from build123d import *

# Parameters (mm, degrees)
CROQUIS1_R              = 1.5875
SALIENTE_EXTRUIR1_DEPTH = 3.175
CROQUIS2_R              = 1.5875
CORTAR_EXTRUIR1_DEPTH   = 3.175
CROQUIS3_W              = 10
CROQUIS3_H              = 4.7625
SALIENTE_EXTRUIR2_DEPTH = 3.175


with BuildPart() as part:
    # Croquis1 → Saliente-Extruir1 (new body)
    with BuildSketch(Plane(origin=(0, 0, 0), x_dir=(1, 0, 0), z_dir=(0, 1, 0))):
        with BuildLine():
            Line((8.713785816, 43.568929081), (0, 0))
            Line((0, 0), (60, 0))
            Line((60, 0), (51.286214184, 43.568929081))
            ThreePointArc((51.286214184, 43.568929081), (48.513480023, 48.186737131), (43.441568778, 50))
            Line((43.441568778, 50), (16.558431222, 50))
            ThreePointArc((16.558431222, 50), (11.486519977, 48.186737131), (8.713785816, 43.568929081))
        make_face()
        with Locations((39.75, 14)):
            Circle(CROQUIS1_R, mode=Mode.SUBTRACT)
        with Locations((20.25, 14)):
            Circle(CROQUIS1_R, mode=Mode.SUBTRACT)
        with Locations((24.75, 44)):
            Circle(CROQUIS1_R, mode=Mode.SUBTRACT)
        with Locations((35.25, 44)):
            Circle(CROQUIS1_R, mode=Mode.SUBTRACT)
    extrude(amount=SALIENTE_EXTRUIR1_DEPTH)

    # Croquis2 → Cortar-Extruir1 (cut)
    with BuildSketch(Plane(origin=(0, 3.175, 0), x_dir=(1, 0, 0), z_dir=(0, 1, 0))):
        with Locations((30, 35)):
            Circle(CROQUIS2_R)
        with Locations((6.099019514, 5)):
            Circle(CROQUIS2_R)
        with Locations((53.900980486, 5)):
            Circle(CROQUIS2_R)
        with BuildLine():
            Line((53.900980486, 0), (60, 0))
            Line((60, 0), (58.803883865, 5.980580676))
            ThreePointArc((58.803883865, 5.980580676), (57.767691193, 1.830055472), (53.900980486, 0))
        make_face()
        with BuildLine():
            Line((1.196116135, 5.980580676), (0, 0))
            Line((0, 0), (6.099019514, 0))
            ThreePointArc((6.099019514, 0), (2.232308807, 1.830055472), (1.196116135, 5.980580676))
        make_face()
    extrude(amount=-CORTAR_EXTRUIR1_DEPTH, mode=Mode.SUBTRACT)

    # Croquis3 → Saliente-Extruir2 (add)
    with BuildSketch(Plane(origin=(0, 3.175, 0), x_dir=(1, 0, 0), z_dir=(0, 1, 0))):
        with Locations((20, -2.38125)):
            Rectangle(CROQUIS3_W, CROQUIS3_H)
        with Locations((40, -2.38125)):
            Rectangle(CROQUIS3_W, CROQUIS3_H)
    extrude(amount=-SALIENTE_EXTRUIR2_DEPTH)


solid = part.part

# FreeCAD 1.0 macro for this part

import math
import FreeCAD as App
import Part
import Sketcher
Q = App.Units.Quantity

doc = App.newDocument("Part")
params = doc.addObject("Spreadsheet::Sheet", "Params")
for row, (alias, value) in enumerate([
    ("sketch1_radius", "8 mm"),
    ("sketch1_width", "60 mm"),
    ("pad1_length", "3.175 mm"),
    ("sketch2_radius", "5 mm"),
    ("pocket1_length", "3.175 mm"),
    ("sketch3_width", "10 mm"),
    ("pad2_length", "3.175 mm"),
], start=1):
    params.set(f"A{row}", alias)
    params.set(f"B{row}", "=" + value)
    params.setAlias(f"B{row}", alias)

body = doc.addObject("PartDesign::Body", "Body")

# Sketch on XZ plane
sketch1 = body.newObject("Sketcher::SketchObject", "Sketch")
sketch1.AttachmentSupport = (doc.getObject("XZ_Plane"), [""])
sketch1.MapMode = "FlatFace"
sketch1.addGeometry([
    Part.LineSegment(App.Vector(8.7, -43.6, 0), App.Vector(0, 0, 0)),  # 0
    Part.LineSegment(App.Vector(0, 0, 0), App.Vector(60, 0, 0)),  # 1
    Part.LineSegment(App.Vector(60, 0, 0), App.Vector(51.3, -43.6, 0)),  # 2
    Part.ArcOfCircle(Part.Circle(App.Vector(43.4, -42, 0), App.Vector(0, 0, 1), 8), math.radians(-90), math.radians(-11)),  # 3
    Part.LineSegment(App.Vector(43.4, -50, 0), App.Vector(16.6, -50, 0)),  # 4
    Part.ArcOfCircle(Part.Circle(App.Vector(16.6, -42, 0), App.Vector(0, 0, 1), 8), math.radians(-169), math.radians(-90)),  # 5
    Part.Circle(App.Vector(20.2, -14, 0), App.Vector(0, 0, 1), 1.6),  # 6
    Part.Circle(App.Vector(39.8, -14, 0), App.Vector(0, 0, 1), 1.6),  # 7
    Part.Circle(App.Vector(24.8, -44, 0), App.Vector(0, 0, 1), 1.6),  # 8
    Part.Circle(App.Vector(35.2, -44, 0), App.Vector(0, 0, 1), 1.6),  # 9
], False)
sketch1.addConstraint([
    Sketcher.Constraint("Coincident", 0, 2, 1, 1),
    Sketcher.Constraint("Coincident", 1, 2, 2, 1),
    Sketcher.Constraint("Tangent", 2, 2, 3, 2),
    Sketcher.Constraint("Tangent", 3, 1, 4, 1),
    Sketcher.Constraint("Tangent", 4, 2, 5, 2),
    Sketcher.Constraint("Tangent", 5, 1, 0, 1),
    Sketcher.Constraint("Horizontal", 1),
    Sketcher.Constraint("Horizontal", 4),
    Sketcher.Constraint("Coincident", 0, 2, -1, 1),
    Sketcher.Constraint("Equal", 3, 5),
    Sketcher.Constraint("Equal", 6, 7),
    Sketcher.Constraint("Equal", 7, 8),
    Sketcher.Constraint("Equal", 8, 9),
    Sketcher.Constraint("Horizontal", 6, 3, 7, 3),
    Sketcher.Constraint("Horizontal", 8, 3, 9, 3),
    Sketcher.Constraint("Horizontal", 2, 2, 5, 1),
    Sketcher.Constraint("Radius", 3, Q("8 mm")),
    Sketcher.Constraint("DistanceX", 1, 1, 1, 2, Q("60 mm")),
    Sketcher.Constraint("Diameter", 6, Q("3.175 mm")),
    Sketcher.Constraint("DistanceY", 3, 3, -1, 1, Q("42 mm")),
    Sketcher.Constraint("DistanceY", 6, 3, -1, 1, Q("14 mm")),
    Sketcher.Constraint("DistanceY", 8, 3, -1, 1, Q("44 mm")),
    Sketcher.Constraint("DistanceX", 8, 3, 7, 3, Q("15 mm")),
    Sketcher.Constraint("DistanceX", 6, 3, 9, 3, Q("15 mm")),
    Sketcher.Constraint("DistanceX", 6, 3, 7, 3, Q("19.5 mm")),
    Sketcher.Constraint("DistanceX", -1, 1, 6, 3, Q("20.25 mm")),
    Sketcher.Constraint("DistanceX", 4, 2, 4, 1, Q("26.883138 mm")),
])
sketch1.setExpression("Constraints[16]", "Params.sketch1_radius")
sketch1.setExpression("Constraints[17]", "Params.sketch1_width")
pad1 = body.newObject("PartDesign::Pad", "Pad")
pad1.Profile = sketch1
pad1.setExpression("Length", "Params.pad1_length")
pad1.Reversed = True

# Sketch on XZ plane
sketch2 = body.newObject("Sketcher::SketchObject", "Sketch001")
sketch2.AttachmentSupport = (doc.getObject("XZ_Plane"), [""])
sketch2.MapMode = "FlatFace"
sketch2.AttachmentOffset = App.Placement(App.Vector(0, 0, -3.175), App.Rotation())
sketch2.addGeometry([
    Part.Circle(App.Vector(30, -35, 0), App.Vector(0, 0, 1), 1.6),  # 0
    Part.Circle(App.Vector(6.1, -5, 0), App.Vector(0, 0, 1), 1.6),  # 1
    Part.Circle(App.Vector(53.9, -5, 0), App.Vector(0, 0, 1), 1.6),  # 2
    Part.LineSegment(App.Vector(53.9, 0, 0), App.Vector(60, 0, 0)),  # 3
    Part.LineSegment(App.Vector(60, 0, 0), App.Vector(58.8, -6, 0)),  # 4
    Part.ArcOfCircle(Part.Circle(App.Vector(53.9, -5, 0), App.Vector(0, 0, 1), 5), math.radians(-11), math.radians(90)),  # 5
    Part.LineSegment(App.Vector(1.2, -6, 0), App.Vector(0, 0, 0)),  # 6
    Part.LineSegment(App.Vector(0, 0, 0), App.Vector(6.1, 0, 0)),  # 7
    Part.ArcOfCircle(Part.Circle(App.Vector(6.1, -5, 0), App.Vector(0, 0, 1), 5), math.radians(90), math.radians(191)),  # 8
], False)
sketch2.addConstraint([
    Sketcher.Constraint("Coincident", 3, 2, 4, 1),
    Sketcher.Constraint("Tangent", 4, 2, 5, 1),
    Sketcher.Constraint("Tangent", 5, 2, 3, 1),
    Sketcher.Constraint("Coincident", 6, 2, 7, 1),
    Sketcher.Constraint("Tangent", 7, 2, 8, 1),
    Sketcher.Constraint("Tangent", 8, 2, 6, 1),
    Sketcher.Constraint("Horizontal", 3),
    Sketcher.Constraint("Horizontal", 7),
    Sketcher.Constraint("Coincident", 6, 2, -1, 1),
    Sketcher.Constraint("Coincident", 5, 3, 2, 3),
    Sketcher.Constraint("Coincident", 8, 3, 1, 3),
    Sketcher.Constraint("Equal", 0, 1),
    Sketcher.Constraint("Equal", 1, 2),
    Sketcher.Constraint("Equal", 5, 8),
    Sketcher.Constraint("PointOnObject", 3, 2, -1),
    Sketcher.Constraint("Horizontal", 4, 2, 8, 2),
    Sketcher.Constraint("Radius", 5, Q("5 mm")),
    Sketcher.Constraint("Diameter", 0, Q("3.175 mm")),
    Sketcher.Constraint("DistanceX", -1, 1, 0, 3, Q("30 mm")),
    Sketcher.Constraint("DistanceY", 0, 3, -1, 1, Q("35 mm")),
    Sketcher.Constraint("DistanceX", -1, 1, 3, 2, Q("60 mm")),
    Sketcher.Constraint("DistanceX", 3, 1, 3, 2, Q("6.09902 mm")),
])
sketch2.setExpression("Constraints[16]", "Params.sketch2_radius")
pocket1 = body.newObject("PartDesign::Pocket", "Pocket")
pocket1.Profile = sketch2
pocket1.setExpression("Length", "Params.pocket1_length")
pocket1.Reversed = True

# Sketch on XZ plane
sketch3 = body.newObject("Sketcher::SketchObject", "Sketch002")
sketch3.AttachmentSupport = (doc.getObject("XZ_Plane"), [""])
sketch3.MapMode = "FlatFace"
sketch3.AttachmentOffset = App.Placement(App.Vector(0, 0, -3.175), App.Rotation())
sketch3.addGeometry([
    Part.LineSegment(App.Vector(15, 0, 0), App.Vector(15, 4.8, 0)),  # 0
    Part.LineSegment(App.Vector(15, 4.8, 0), App.Vector(25, 4.8, 0)),  # 1
    Part.LineSegment(App.Vector(25, 4.8, 0), App.Vector(25, 0, 0)),  # 2
    Part.LineSegment(App.Vector(25, 0, 0), App.Vector(15, 0, 0)),  # 3
    Part.LineSegment(App.Vector(35, 0, 0), App.Vector(35, 4.8, 0)),  # 4
    Part.LineSegment(App.Vector(35, 4.8, 0), App.Vector(45, 4.8, 0)),  # 5
    Part.LineSegment(App.Vector(45, 4.8, 0), App.Vector(45, 0, 0)),  # 6
    Part.LineSegment(App.Vector(45, 0, 0), App.Vector(35, 0, 0)),  # 7
], False)
sketch3.addConstraint([
    Sketcher.Constraint("Coincident", 0, 2, 1, 1),
    Sketcher.Constraint("Coincident", 1, 2, 2, 1),
    Sketcher.Constraint("Coincident", 2, 2, 3, 1),
    Sketcher.Constraint("Coincident", 3, 2, 0, 1),
    Sketcher.Constraint("Coincident", 4, 2, 5, 1),
    Sketcher.Constraint("Coincident", 5, 2, 6, 1),
    Sketcher.Constraint("Coincident", 6, 2, 7, 1),
    Sketcher.Constraint("Coincident", 7, 2, 4, 1),
    Sketcher.Constraint("Vertical", 0),
    Sketcher.Constraint("Horizontal", 1),
    Sketcher.Constraint("Vertical", 2),
    Sketcher.Constraint("Horizontal", 3),
    Sketcher.Constraint("Vertical", 4),
    Sketcher.Constraint("Horizontal", 5),
    Sketcher.Constraint("Vertical", 6),
    Sketcher.Constraint("Horizontal", 7),
    Sketcher.Constraint("PointOnObject", 2, 2, -1),
    Sketcher.Constraint("PointOnObject", 6, 2, -1),
    Sketcher.Constraint("Horizontal", 1, 2, 4, 2),
    Sketcher.Constraint("Equal", 3, 5),
    Sketcher.Constraint("DistanceX", 1, 1, 1, 2, Q("10 mm")),
    Sketcher.Constraint("DistanceX", -1, 1, 0, 2, Q("15 mm")),
    Sketcher.Constraint("DistanceX", -1, 1, 4, 2, Q("35 mm")),
    Sketcher.Constraint("DistanceY", 0, 1, 0, 2, Q("4.7625 mm")),
])
sketch3.setExpression("Constraints[20]", "Params.sketch3_width")
pad2 = body.newObject("PartDesign::Pad", "Pad001")
pad2.Profile = sketch3
pad2.setExpression("Length", "Params.pad2_length")

doc.recompute()
